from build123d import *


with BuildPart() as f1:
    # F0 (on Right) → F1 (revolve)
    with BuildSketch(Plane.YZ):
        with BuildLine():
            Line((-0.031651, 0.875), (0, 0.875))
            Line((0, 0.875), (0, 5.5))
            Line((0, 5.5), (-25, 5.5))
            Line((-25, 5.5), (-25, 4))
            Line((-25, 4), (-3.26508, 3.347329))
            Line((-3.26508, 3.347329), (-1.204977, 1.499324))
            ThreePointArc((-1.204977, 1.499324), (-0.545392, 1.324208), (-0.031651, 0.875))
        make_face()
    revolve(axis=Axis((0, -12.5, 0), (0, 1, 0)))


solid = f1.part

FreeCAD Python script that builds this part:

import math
import FreeCAD as App
import Part
import Sketcher
from FreeCAD import Vector
Q = App.Units.Quantity

doc = App.newDocument("Part")
body = doc.addObject("PartDesign::Body", "Body")

sketch1 = body.newObject("Sketcher::SketchObject", "Sketch")
sketch1.AttachmentSupport = (doc.getObject("YZ_Plane"), [""])
sketch1.MapMode = "FlatFace"
sketch1.addGeometry(Part.LineSegment(Vector(-0.032, 0.875, 0), Vector(0, 0.875, 0)), False)
sketch1.addGeometry(Part.LineSegment(Vector(0, 0.875, 0), Vector(0, 5.5, 0)), False)
sketch1.addGeometry(Part.LineSegment(Vector(0, 5.5, 0), Vector(-25, 5.5, 0)), False)
sketch1.addGeometry(Part.LineSegment(Vector(-25, 5.5, 0), Vector(-25, 4, 0)), False)
sketch1.addGeometry(Part.LineSegment(Vector(-25, 4, 0), Vector(-3.265, 3.347, 0)), False)
sketch1.addGeometry(Part.LineSegment(Vector(-3.265, 3.347, 0), Vector(-1.205, 1.499, 0)), False)
sketch1.addGeometry(Part.ArcOfCircle(Part.Circle(Vector(-1.25, 0, 0), Vector(0, 0, 1), 1.5), math.radians(36), math.radians(88)), False)
sketch1.addConstraint(Sketcher.Constraint("Coincident", 0, 2, 1, 1))
sketch1.addConstraint(Sketcher.Constraint("Coincident", 1, 2, 2, 1))
sketch1.addConstraint(Sketcher.Constraint("Coincident", 2, 2, 3, 1))
sketch1.addConstraint(Sketcher.Constraint("Coincident", 3, 2, 4, 1))
sketch1.addConstraint(Sketcher.Constraint("Coincident", 4, 2, 5, 1))
sketch1.addConstraint(Sketcher.Constraint("Coincident", 5, 2, 6, 2))
sketch1.addConstraint(Sketcher.Constraint("Coincident", 6, 1, 0, 1))
sketch1.addConstraint(Sketcher.Constraint("Horizontal", 0))
sketch1.addConstraint(Sketcher.Constraint("Vertical", 1))
sketch1.addConstraint(Sketcher.Constraint("Horizontal", 2))
sketch1.addConstraint(Sketcher.Constraint("Vertical", 3))
sketch1.addConstraint(Sketcher.Constraint("PointOnObject", 6, 3, -1))
sketch1.addConstraint(Sketcher.Constraint("PointOnObject", 0, 2, -2))
sketch1.addConstraint(Sketcher.Constraint("Radius", 6, 1.5))
sketch1.addConstraint(Sketcher.Constraint("DistanceX", 2, 2, 2, 1, 25.0))
sketch1.addConstraint(Sketcher.Constraint("DistanceY", 3, 2, 3, 1, 1.5))
sketch1.addConstraint(Sketcher.Constraint("DistanceY", -1, 1, 3, 2, 4.0))
sketch1.addConstraint(Sketcher.Constraint("Angle", 4, Q("-1.72 deg")))
sketch1.addConstraint(Sketcher.Constraint("DistanceY", 1, 1, 1, 2, 4.625))
sketch1.addConstraint(Sketcher.Constraint("DistanceX", 6, 3, -1, 1, 1.25))
sketch1.addConstraint(Sketcher.Constraint("DistanceX", 4, 2, -1, 1, 3.26508))
sketch1.addConstraint(Sketcher.Constraint("Distance", 5, 2.767516))
revolution = body.newObject("PartDesign::Revolution", "Revolution")
revolution.Profile = sketch1
revolution.ReferenceAxis = (sketch1, ["H_Axis"])
revolution.Angle = 360

doc.recompute()
